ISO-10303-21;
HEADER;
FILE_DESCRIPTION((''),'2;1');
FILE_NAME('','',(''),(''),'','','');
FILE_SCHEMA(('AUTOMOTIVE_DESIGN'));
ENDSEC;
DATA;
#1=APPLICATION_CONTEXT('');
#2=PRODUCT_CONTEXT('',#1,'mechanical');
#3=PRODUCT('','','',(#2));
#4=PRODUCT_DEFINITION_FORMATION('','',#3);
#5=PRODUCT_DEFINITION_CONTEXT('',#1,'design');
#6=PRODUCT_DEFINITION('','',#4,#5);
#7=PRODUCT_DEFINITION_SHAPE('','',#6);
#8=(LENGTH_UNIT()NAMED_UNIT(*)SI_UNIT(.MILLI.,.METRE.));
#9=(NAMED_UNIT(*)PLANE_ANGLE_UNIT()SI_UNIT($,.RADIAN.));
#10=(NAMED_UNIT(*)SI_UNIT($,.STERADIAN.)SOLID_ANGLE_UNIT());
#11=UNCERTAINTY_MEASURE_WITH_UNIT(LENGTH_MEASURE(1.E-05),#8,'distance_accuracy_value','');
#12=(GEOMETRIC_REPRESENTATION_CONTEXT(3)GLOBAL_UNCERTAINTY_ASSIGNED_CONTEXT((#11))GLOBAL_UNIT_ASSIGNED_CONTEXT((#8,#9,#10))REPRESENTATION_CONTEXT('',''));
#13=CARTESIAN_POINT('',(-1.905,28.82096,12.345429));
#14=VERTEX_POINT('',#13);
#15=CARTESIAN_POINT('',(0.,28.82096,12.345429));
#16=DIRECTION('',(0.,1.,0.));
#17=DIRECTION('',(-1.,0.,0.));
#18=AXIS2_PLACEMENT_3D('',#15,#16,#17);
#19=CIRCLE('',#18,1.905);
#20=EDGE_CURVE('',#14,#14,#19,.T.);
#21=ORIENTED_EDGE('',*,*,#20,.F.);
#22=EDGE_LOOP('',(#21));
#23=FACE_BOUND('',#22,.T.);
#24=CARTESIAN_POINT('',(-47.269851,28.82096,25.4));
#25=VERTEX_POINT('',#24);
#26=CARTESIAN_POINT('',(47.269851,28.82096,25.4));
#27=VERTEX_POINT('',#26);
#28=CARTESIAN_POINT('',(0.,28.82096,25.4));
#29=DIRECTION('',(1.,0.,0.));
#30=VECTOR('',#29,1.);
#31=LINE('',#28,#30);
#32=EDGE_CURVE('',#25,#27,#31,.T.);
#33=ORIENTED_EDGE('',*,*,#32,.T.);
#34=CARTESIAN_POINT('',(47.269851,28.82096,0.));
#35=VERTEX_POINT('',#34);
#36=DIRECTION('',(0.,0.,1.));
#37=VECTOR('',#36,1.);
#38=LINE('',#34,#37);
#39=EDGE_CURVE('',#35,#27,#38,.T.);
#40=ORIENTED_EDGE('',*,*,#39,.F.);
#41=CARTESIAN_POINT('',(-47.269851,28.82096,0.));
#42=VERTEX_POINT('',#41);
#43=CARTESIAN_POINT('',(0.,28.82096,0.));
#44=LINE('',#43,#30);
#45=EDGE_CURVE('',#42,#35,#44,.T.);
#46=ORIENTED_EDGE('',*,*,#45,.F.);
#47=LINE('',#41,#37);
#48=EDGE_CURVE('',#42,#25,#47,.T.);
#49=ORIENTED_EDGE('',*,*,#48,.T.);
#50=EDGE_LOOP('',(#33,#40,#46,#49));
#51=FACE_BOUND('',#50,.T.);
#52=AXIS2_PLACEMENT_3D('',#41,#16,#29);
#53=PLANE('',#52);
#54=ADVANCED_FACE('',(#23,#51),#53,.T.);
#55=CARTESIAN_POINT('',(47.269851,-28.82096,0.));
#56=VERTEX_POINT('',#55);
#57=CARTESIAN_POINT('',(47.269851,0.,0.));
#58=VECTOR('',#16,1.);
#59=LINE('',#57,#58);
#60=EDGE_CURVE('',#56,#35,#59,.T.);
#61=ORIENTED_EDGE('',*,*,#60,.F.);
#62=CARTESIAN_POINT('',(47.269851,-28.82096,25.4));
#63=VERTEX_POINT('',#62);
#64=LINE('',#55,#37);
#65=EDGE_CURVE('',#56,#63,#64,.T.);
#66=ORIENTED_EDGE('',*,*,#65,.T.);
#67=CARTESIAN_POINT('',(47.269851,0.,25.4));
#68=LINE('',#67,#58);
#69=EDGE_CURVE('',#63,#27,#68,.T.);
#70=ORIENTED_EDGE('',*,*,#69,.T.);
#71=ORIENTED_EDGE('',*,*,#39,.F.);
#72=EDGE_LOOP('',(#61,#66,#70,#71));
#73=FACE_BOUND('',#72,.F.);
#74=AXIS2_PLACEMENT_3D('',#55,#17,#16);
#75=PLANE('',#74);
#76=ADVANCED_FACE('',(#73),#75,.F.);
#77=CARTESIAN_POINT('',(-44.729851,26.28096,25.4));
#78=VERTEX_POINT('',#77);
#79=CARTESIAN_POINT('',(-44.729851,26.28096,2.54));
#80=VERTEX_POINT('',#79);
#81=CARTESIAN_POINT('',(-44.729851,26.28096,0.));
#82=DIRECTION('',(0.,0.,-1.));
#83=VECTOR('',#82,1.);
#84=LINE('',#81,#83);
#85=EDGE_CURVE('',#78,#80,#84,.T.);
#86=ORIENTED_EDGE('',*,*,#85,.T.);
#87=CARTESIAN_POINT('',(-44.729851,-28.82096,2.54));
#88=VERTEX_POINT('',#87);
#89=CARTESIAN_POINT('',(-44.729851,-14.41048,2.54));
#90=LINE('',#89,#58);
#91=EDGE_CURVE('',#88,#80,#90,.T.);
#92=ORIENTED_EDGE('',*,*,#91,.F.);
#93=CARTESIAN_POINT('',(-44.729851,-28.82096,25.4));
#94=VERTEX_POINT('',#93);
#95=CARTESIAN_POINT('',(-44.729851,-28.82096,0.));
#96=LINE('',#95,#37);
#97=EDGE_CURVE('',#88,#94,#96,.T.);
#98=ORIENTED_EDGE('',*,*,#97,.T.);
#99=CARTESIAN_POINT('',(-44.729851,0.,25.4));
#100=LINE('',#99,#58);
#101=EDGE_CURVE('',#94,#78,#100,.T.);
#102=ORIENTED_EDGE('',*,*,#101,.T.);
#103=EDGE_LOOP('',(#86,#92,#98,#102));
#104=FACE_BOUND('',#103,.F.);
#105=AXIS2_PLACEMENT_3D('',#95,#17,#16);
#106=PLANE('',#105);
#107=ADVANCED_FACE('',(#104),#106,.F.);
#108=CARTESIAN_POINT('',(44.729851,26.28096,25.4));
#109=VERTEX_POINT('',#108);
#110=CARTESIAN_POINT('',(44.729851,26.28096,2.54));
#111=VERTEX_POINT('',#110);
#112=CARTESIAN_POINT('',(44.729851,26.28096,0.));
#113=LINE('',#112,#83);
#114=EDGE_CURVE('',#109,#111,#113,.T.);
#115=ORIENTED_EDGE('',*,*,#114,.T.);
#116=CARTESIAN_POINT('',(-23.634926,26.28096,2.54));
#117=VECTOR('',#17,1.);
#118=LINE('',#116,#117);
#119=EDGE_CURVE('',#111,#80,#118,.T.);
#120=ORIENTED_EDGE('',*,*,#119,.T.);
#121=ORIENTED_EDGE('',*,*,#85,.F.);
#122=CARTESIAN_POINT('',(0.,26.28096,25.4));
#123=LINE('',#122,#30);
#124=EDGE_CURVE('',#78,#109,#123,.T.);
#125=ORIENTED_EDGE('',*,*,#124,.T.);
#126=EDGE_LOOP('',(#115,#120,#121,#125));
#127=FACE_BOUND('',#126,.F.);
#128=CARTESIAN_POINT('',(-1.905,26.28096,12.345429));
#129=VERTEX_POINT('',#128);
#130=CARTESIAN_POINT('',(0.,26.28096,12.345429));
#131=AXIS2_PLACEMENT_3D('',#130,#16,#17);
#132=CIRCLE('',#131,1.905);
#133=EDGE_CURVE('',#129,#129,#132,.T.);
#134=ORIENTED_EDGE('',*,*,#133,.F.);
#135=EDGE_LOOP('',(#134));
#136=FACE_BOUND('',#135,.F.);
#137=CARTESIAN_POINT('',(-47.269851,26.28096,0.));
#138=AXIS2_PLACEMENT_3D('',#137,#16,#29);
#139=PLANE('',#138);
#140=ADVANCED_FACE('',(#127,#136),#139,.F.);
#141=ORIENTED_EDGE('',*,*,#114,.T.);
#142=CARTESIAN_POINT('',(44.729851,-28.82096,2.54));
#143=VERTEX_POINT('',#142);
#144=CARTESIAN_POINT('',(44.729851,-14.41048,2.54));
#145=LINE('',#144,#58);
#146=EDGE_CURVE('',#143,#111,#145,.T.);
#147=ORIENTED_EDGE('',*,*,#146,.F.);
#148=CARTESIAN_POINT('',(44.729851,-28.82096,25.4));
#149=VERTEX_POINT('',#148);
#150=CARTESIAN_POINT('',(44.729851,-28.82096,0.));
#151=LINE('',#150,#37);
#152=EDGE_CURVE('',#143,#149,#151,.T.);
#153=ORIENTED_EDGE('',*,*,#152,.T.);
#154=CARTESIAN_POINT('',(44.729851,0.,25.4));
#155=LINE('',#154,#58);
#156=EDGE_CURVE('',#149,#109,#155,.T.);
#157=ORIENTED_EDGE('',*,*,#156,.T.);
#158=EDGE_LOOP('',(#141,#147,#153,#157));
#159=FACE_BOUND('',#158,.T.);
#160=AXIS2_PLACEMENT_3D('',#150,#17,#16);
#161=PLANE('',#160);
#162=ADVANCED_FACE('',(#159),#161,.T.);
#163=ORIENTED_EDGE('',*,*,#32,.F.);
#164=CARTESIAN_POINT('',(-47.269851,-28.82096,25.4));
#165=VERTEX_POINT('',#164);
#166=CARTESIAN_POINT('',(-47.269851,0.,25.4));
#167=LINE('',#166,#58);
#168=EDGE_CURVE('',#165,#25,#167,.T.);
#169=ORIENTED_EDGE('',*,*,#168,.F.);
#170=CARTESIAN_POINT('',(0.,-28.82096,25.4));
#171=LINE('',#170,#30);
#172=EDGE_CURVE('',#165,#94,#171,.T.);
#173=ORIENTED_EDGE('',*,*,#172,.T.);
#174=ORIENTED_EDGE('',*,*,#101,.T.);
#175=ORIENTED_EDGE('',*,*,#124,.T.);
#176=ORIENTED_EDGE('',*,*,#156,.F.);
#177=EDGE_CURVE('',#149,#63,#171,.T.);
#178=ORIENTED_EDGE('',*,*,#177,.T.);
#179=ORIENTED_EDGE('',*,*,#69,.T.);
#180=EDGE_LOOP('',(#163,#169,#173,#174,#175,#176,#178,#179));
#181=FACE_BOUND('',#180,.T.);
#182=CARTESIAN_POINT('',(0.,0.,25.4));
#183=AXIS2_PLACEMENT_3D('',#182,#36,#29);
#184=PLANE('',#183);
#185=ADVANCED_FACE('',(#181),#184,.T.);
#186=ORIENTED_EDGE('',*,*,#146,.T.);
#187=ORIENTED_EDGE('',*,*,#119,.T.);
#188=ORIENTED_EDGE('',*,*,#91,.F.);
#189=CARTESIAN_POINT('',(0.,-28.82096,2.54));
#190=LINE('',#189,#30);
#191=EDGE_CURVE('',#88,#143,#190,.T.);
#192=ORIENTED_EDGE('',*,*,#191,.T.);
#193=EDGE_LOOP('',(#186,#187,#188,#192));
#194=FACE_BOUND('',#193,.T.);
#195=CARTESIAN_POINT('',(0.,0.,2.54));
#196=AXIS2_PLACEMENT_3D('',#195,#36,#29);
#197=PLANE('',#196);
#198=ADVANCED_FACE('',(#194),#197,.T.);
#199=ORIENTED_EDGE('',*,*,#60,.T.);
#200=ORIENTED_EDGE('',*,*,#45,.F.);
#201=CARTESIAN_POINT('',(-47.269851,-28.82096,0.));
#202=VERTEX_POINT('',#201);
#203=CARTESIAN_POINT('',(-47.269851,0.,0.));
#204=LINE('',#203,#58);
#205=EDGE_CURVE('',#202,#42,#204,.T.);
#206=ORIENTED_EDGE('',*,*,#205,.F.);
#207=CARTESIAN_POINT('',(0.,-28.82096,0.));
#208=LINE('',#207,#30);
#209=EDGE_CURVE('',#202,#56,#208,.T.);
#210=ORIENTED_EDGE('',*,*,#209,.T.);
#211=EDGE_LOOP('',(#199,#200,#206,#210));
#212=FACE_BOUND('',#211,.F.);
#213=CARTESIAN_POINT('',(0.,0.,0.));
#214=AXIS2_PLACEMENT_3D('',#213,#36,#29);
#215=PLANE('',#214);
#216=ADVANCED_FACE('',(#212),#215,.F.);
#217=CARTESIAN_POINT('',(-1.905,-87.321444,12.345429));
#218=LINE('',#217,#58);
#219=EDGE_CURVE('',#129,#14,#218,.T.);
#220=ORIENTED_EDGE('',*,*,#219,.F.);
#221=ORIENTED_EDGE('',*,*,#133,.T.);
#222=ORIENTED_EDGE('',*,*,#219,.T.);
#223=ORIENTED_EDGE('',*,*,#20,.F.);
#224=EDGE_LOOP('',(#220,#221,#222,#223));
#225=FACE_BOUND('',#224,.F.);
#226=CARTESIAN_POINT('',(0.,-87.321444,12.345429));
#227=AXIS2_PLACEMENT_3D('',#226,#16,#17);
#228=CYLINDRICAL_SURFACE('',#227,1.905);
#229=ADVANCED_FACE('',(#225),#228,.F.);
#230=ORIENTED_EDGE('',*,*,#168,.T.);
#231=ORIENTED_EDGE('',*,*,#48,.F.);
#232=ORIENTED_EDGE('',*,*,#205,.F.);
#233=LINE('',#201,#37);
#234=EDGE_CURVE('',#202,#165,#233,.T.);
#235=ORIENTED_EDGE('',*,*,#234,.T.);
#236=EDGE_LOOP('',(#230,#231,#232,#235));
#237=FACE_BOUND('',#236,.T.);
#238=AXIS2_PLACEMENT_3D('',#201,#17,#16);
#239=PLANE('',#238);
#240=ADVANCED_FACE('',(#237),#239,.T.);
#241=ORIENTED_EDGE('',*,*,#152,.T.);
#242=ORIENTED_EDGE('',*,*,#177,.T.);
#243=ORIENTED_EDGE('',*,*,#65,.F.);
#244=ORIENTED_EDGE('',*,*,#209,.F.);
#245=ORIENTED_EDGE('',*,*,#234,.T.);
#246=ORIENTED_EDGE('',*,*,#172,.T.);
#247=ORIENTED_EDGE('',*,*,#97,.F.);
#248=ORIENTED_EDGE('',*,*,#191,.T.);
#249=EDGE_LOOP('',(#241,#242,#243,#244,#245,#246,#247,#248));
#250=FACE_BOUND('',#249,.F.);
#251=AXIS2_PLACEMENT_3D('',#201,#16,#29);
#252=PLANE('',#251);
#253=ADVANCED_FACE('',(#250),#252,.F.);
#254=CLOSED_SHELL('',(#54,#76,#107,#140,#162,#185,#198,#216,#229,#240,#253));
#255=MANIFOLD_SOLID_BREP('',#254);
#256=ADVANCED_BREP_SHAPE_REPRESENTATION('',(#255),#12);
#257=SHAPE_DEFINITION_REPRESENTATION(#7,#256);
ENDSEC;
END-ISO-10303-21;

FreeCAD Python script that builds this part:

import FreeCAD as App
import Part
import Sketcher
Q = App.Units.Quantity


def faces_at(feature, points):
    """Names of the faces that lie closest to the given points."""
    faces = feature.Shape.Faces
    near = lambda p: min(range(len(faces)), key=lambda i: faces[i].distToShape(Part.Vertex(*p))[0])
    return sorted({f"Face{near(p) + 1}" for p in points})


def add_polygon(sketch, points):
    """Adds a closed chain of lines whose ends are joined by coincident constraints."""
    first, n = sketch.GeometryCount, len(points)
    for a, b in zip(points, points[1:] + points[:1]):
        sketch.addGeometry(Part.LineSegment(App.Vector(*a, 0), App.Vector(*b, 0)), False)
    for i in range(n):
        sketch.addConstraint(Sketcher.Constraint("Coincident", first + i, 2, first + (i + 1) % n, 1))

doc = App.newDocument("Part")
body = doc.addObject("PartDesign::Body", "Body")

sketch1 = body.newObject("Sketcher::SketchObject", "Sketch")
sketch1.AttachmentSupport = (doc.getObject("XY_Plane"), [""])
sketch1.MapMode = "FlatFace"
add_polygon(sketch1, [(-47, 29), (-47, -29), (47, -29), (47, 29)])
sketch1.addConstraint(Sketcher.Constraint("Vertical", 0))
sketch1.addConstraint(Sketcher.Constraint("Horizontal", 1))
sketch1.addConstraint(Sketcher.Constraint("Vertical", 2))
sketch1.addConstraint(Sketcher.Constraint("Horizontal", 3))
sketch1.addConstraint(Sketcher.Constraint("Symmetric", 0, 2, 2, 2, -1, 1))
sketch1.addConstraint(Sketcher.Constraint("DistanceY", 0, 2, 0, 1, Q("57.64192 mm")))
sketch1.addConstraint(Sketcher.Constraint("DistanceX", 1, 1, 1, 2, Q("94.539702 mm")))
pad1 = body.newObject("PartDesign::Pad", "Pad")
pad1.Profile = sketch1
pad1.Length = Q("1 in")
doc.recompute()

thickness = body.newObject("PartDesign::Thickness", "Thickness")
thickness.Base = (pad1, faces_at(pad1, [(0, 0, 25.4), (0, -28.821, 12.7)]))
thickness.Value = Q("0.1 in")
thickness.Reversed = True
thickness.Join = "Arc"

sketch2 = body.newObject("Sketcher::SketchObject", "Sketch001")
sketch2.AttachmentSupport = (doc.getObject("XZ_Plane"), [""])
sketch2.MapMode = "FlatFace"
sketch2.AttachmentOffset = App.Placement(App.Vector(0, 0, -26.28096), App.Rotation())
sketch2.addGeometry(Part.Circle(App.Vector(0, 12.3, 0), App.Vector(0, 0, 1), 1.9), False)
sketch2.addConstraint(Sketcher.Constraint("PointOnObject", 0, 3, -2))
sketch2.addConstraint(Sketcher.Constraint("Diameter", 0, Q("0.15 in")))
sketch2.addConstraint(Sketcher.Constraint("DistanceY", -1, 1, 0, 3, Q("12.345429 mm")))
doc.recompute()
hole = body.newObject("PartDesign::Hole", "Hole")
hole.Profile = sketch2
hole.ThreadType = "None"
hole.Diameter = Q("0.15 in")
hole.DepthType = "ThroughAll"

doc.recompute()
